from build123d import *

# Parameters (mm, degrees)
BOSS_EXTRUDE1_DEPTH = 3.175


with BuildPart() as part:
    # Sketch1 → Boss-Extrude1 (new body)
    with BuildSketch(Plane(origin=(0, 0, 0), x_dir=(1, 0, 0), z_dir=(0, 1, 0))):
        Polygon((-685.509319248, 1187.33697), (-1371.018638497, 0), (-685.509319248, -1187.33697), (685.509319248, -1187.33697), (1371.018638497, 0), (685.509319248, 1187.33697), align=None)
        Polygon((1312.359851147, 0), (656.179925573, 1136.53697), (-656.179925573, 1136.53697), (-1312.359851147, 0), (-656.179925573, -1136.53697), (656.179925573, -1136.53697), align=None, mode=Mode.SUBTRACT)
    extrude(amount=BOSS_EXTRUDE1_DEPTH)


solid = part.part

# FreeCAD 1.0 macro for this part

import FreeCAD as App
import Part
import Sketcher
Q = App.Units.Quantity


def add_polygon(sketch, points):
    """Adds a closed chain of lines whose ends are joined by coincident constraints."""
    first, n = sketch.GeometryCount, len(points)
    for a, b in zip(points, points[1:] + points[:1]):
        sketch.addGeometry(Part.LineSegment(App.Vector(*a, 0), App.Vector(*b, 0)), False)
    for i in range(n):
        sketch.addConstraint(Sketcher.Constraint("Coincident", first + i, 2, first + (i + 1) % n, 1))

doc = App.newDocument("Part")
body = doc.addObject("PartDesign::Body", "Body")

sketch1 = body.newObject("Sketcher::SketchObject", "Sketch")
sketch1.AttachmentSupport = (doc.getObject("XZ_Plane"), [""])
sketch1.MapMode = "FlatFace"
add_polygon(sketch1, [(-686, -1187), (-1371, 0), (-686, 1187), (686, 1187), (1371, 0), (686, -1187)])
add_polygon(sketch1, [(656, -1137), (1312, 0), (656, 1137), (-656, 1137), (-1312, 0), (-656, -1137)])
sketch1.addConstraint([
    Sketcher.Constraint("Horizontal", 2),
    Sketcher.Constraint("Horizontal", 5),
    Sketcher.Constraint("Horizontal", 8),
    Sketcher.Constraint("Horizontal", 11),
    Sketcher.Constraint("Symmetric", 0, 2, 3, 2, -1, 1),
    Sketcher.Constraint("Symmetric", 1, 2, 4, 2, -1, 1),
    Sketcher.Constraint("Symmetric", 6, 2, 9, 2, -1, 1),
    Sketcher.Constraint("Symmetric", 7, 2, 10, 2, -1, 1),
    Sketcher.Constraint("PointOnObject", 0, 2, -1),
    Sketcher.Constraint("PointOnObject", 6, 2, -1),
    Sketcher.Constraint("Parallel", 0, 3),
    Sketcher.Constraint("Parallel", 4, 6),
    Sketcher.Constraint("Parallel", 3, 7),
    Sketcher.Constraint("Parallel", 6, 9),
    Sketcher.Constraint("Vertical", 2, 2, 4, 2),
    Sketcher.Constraint("Angle", 0, Q("120 deg")),
    Sketcher.Constraint("DistanceY", 7, 2, 2, 2, Q("2 in")),
    Sketcher.Constraint("DistanceY", 4, 2, 2, 2, Q("93.4911 in")),
    Sketcher.Constraint("DistanceX", 2, 1, 2, 2, 1371.018638),
    Sketcher.Constraint("DistanceX", 8, 2, 8, 1, 1312.359851),
])
pad1 = body.newObject("PartDesign::Pad", "Pad")
pad1.Profile = sketch1
pad1.Length = Q("0.125 in")
pad1.Reversed = True

doc.recompute()
